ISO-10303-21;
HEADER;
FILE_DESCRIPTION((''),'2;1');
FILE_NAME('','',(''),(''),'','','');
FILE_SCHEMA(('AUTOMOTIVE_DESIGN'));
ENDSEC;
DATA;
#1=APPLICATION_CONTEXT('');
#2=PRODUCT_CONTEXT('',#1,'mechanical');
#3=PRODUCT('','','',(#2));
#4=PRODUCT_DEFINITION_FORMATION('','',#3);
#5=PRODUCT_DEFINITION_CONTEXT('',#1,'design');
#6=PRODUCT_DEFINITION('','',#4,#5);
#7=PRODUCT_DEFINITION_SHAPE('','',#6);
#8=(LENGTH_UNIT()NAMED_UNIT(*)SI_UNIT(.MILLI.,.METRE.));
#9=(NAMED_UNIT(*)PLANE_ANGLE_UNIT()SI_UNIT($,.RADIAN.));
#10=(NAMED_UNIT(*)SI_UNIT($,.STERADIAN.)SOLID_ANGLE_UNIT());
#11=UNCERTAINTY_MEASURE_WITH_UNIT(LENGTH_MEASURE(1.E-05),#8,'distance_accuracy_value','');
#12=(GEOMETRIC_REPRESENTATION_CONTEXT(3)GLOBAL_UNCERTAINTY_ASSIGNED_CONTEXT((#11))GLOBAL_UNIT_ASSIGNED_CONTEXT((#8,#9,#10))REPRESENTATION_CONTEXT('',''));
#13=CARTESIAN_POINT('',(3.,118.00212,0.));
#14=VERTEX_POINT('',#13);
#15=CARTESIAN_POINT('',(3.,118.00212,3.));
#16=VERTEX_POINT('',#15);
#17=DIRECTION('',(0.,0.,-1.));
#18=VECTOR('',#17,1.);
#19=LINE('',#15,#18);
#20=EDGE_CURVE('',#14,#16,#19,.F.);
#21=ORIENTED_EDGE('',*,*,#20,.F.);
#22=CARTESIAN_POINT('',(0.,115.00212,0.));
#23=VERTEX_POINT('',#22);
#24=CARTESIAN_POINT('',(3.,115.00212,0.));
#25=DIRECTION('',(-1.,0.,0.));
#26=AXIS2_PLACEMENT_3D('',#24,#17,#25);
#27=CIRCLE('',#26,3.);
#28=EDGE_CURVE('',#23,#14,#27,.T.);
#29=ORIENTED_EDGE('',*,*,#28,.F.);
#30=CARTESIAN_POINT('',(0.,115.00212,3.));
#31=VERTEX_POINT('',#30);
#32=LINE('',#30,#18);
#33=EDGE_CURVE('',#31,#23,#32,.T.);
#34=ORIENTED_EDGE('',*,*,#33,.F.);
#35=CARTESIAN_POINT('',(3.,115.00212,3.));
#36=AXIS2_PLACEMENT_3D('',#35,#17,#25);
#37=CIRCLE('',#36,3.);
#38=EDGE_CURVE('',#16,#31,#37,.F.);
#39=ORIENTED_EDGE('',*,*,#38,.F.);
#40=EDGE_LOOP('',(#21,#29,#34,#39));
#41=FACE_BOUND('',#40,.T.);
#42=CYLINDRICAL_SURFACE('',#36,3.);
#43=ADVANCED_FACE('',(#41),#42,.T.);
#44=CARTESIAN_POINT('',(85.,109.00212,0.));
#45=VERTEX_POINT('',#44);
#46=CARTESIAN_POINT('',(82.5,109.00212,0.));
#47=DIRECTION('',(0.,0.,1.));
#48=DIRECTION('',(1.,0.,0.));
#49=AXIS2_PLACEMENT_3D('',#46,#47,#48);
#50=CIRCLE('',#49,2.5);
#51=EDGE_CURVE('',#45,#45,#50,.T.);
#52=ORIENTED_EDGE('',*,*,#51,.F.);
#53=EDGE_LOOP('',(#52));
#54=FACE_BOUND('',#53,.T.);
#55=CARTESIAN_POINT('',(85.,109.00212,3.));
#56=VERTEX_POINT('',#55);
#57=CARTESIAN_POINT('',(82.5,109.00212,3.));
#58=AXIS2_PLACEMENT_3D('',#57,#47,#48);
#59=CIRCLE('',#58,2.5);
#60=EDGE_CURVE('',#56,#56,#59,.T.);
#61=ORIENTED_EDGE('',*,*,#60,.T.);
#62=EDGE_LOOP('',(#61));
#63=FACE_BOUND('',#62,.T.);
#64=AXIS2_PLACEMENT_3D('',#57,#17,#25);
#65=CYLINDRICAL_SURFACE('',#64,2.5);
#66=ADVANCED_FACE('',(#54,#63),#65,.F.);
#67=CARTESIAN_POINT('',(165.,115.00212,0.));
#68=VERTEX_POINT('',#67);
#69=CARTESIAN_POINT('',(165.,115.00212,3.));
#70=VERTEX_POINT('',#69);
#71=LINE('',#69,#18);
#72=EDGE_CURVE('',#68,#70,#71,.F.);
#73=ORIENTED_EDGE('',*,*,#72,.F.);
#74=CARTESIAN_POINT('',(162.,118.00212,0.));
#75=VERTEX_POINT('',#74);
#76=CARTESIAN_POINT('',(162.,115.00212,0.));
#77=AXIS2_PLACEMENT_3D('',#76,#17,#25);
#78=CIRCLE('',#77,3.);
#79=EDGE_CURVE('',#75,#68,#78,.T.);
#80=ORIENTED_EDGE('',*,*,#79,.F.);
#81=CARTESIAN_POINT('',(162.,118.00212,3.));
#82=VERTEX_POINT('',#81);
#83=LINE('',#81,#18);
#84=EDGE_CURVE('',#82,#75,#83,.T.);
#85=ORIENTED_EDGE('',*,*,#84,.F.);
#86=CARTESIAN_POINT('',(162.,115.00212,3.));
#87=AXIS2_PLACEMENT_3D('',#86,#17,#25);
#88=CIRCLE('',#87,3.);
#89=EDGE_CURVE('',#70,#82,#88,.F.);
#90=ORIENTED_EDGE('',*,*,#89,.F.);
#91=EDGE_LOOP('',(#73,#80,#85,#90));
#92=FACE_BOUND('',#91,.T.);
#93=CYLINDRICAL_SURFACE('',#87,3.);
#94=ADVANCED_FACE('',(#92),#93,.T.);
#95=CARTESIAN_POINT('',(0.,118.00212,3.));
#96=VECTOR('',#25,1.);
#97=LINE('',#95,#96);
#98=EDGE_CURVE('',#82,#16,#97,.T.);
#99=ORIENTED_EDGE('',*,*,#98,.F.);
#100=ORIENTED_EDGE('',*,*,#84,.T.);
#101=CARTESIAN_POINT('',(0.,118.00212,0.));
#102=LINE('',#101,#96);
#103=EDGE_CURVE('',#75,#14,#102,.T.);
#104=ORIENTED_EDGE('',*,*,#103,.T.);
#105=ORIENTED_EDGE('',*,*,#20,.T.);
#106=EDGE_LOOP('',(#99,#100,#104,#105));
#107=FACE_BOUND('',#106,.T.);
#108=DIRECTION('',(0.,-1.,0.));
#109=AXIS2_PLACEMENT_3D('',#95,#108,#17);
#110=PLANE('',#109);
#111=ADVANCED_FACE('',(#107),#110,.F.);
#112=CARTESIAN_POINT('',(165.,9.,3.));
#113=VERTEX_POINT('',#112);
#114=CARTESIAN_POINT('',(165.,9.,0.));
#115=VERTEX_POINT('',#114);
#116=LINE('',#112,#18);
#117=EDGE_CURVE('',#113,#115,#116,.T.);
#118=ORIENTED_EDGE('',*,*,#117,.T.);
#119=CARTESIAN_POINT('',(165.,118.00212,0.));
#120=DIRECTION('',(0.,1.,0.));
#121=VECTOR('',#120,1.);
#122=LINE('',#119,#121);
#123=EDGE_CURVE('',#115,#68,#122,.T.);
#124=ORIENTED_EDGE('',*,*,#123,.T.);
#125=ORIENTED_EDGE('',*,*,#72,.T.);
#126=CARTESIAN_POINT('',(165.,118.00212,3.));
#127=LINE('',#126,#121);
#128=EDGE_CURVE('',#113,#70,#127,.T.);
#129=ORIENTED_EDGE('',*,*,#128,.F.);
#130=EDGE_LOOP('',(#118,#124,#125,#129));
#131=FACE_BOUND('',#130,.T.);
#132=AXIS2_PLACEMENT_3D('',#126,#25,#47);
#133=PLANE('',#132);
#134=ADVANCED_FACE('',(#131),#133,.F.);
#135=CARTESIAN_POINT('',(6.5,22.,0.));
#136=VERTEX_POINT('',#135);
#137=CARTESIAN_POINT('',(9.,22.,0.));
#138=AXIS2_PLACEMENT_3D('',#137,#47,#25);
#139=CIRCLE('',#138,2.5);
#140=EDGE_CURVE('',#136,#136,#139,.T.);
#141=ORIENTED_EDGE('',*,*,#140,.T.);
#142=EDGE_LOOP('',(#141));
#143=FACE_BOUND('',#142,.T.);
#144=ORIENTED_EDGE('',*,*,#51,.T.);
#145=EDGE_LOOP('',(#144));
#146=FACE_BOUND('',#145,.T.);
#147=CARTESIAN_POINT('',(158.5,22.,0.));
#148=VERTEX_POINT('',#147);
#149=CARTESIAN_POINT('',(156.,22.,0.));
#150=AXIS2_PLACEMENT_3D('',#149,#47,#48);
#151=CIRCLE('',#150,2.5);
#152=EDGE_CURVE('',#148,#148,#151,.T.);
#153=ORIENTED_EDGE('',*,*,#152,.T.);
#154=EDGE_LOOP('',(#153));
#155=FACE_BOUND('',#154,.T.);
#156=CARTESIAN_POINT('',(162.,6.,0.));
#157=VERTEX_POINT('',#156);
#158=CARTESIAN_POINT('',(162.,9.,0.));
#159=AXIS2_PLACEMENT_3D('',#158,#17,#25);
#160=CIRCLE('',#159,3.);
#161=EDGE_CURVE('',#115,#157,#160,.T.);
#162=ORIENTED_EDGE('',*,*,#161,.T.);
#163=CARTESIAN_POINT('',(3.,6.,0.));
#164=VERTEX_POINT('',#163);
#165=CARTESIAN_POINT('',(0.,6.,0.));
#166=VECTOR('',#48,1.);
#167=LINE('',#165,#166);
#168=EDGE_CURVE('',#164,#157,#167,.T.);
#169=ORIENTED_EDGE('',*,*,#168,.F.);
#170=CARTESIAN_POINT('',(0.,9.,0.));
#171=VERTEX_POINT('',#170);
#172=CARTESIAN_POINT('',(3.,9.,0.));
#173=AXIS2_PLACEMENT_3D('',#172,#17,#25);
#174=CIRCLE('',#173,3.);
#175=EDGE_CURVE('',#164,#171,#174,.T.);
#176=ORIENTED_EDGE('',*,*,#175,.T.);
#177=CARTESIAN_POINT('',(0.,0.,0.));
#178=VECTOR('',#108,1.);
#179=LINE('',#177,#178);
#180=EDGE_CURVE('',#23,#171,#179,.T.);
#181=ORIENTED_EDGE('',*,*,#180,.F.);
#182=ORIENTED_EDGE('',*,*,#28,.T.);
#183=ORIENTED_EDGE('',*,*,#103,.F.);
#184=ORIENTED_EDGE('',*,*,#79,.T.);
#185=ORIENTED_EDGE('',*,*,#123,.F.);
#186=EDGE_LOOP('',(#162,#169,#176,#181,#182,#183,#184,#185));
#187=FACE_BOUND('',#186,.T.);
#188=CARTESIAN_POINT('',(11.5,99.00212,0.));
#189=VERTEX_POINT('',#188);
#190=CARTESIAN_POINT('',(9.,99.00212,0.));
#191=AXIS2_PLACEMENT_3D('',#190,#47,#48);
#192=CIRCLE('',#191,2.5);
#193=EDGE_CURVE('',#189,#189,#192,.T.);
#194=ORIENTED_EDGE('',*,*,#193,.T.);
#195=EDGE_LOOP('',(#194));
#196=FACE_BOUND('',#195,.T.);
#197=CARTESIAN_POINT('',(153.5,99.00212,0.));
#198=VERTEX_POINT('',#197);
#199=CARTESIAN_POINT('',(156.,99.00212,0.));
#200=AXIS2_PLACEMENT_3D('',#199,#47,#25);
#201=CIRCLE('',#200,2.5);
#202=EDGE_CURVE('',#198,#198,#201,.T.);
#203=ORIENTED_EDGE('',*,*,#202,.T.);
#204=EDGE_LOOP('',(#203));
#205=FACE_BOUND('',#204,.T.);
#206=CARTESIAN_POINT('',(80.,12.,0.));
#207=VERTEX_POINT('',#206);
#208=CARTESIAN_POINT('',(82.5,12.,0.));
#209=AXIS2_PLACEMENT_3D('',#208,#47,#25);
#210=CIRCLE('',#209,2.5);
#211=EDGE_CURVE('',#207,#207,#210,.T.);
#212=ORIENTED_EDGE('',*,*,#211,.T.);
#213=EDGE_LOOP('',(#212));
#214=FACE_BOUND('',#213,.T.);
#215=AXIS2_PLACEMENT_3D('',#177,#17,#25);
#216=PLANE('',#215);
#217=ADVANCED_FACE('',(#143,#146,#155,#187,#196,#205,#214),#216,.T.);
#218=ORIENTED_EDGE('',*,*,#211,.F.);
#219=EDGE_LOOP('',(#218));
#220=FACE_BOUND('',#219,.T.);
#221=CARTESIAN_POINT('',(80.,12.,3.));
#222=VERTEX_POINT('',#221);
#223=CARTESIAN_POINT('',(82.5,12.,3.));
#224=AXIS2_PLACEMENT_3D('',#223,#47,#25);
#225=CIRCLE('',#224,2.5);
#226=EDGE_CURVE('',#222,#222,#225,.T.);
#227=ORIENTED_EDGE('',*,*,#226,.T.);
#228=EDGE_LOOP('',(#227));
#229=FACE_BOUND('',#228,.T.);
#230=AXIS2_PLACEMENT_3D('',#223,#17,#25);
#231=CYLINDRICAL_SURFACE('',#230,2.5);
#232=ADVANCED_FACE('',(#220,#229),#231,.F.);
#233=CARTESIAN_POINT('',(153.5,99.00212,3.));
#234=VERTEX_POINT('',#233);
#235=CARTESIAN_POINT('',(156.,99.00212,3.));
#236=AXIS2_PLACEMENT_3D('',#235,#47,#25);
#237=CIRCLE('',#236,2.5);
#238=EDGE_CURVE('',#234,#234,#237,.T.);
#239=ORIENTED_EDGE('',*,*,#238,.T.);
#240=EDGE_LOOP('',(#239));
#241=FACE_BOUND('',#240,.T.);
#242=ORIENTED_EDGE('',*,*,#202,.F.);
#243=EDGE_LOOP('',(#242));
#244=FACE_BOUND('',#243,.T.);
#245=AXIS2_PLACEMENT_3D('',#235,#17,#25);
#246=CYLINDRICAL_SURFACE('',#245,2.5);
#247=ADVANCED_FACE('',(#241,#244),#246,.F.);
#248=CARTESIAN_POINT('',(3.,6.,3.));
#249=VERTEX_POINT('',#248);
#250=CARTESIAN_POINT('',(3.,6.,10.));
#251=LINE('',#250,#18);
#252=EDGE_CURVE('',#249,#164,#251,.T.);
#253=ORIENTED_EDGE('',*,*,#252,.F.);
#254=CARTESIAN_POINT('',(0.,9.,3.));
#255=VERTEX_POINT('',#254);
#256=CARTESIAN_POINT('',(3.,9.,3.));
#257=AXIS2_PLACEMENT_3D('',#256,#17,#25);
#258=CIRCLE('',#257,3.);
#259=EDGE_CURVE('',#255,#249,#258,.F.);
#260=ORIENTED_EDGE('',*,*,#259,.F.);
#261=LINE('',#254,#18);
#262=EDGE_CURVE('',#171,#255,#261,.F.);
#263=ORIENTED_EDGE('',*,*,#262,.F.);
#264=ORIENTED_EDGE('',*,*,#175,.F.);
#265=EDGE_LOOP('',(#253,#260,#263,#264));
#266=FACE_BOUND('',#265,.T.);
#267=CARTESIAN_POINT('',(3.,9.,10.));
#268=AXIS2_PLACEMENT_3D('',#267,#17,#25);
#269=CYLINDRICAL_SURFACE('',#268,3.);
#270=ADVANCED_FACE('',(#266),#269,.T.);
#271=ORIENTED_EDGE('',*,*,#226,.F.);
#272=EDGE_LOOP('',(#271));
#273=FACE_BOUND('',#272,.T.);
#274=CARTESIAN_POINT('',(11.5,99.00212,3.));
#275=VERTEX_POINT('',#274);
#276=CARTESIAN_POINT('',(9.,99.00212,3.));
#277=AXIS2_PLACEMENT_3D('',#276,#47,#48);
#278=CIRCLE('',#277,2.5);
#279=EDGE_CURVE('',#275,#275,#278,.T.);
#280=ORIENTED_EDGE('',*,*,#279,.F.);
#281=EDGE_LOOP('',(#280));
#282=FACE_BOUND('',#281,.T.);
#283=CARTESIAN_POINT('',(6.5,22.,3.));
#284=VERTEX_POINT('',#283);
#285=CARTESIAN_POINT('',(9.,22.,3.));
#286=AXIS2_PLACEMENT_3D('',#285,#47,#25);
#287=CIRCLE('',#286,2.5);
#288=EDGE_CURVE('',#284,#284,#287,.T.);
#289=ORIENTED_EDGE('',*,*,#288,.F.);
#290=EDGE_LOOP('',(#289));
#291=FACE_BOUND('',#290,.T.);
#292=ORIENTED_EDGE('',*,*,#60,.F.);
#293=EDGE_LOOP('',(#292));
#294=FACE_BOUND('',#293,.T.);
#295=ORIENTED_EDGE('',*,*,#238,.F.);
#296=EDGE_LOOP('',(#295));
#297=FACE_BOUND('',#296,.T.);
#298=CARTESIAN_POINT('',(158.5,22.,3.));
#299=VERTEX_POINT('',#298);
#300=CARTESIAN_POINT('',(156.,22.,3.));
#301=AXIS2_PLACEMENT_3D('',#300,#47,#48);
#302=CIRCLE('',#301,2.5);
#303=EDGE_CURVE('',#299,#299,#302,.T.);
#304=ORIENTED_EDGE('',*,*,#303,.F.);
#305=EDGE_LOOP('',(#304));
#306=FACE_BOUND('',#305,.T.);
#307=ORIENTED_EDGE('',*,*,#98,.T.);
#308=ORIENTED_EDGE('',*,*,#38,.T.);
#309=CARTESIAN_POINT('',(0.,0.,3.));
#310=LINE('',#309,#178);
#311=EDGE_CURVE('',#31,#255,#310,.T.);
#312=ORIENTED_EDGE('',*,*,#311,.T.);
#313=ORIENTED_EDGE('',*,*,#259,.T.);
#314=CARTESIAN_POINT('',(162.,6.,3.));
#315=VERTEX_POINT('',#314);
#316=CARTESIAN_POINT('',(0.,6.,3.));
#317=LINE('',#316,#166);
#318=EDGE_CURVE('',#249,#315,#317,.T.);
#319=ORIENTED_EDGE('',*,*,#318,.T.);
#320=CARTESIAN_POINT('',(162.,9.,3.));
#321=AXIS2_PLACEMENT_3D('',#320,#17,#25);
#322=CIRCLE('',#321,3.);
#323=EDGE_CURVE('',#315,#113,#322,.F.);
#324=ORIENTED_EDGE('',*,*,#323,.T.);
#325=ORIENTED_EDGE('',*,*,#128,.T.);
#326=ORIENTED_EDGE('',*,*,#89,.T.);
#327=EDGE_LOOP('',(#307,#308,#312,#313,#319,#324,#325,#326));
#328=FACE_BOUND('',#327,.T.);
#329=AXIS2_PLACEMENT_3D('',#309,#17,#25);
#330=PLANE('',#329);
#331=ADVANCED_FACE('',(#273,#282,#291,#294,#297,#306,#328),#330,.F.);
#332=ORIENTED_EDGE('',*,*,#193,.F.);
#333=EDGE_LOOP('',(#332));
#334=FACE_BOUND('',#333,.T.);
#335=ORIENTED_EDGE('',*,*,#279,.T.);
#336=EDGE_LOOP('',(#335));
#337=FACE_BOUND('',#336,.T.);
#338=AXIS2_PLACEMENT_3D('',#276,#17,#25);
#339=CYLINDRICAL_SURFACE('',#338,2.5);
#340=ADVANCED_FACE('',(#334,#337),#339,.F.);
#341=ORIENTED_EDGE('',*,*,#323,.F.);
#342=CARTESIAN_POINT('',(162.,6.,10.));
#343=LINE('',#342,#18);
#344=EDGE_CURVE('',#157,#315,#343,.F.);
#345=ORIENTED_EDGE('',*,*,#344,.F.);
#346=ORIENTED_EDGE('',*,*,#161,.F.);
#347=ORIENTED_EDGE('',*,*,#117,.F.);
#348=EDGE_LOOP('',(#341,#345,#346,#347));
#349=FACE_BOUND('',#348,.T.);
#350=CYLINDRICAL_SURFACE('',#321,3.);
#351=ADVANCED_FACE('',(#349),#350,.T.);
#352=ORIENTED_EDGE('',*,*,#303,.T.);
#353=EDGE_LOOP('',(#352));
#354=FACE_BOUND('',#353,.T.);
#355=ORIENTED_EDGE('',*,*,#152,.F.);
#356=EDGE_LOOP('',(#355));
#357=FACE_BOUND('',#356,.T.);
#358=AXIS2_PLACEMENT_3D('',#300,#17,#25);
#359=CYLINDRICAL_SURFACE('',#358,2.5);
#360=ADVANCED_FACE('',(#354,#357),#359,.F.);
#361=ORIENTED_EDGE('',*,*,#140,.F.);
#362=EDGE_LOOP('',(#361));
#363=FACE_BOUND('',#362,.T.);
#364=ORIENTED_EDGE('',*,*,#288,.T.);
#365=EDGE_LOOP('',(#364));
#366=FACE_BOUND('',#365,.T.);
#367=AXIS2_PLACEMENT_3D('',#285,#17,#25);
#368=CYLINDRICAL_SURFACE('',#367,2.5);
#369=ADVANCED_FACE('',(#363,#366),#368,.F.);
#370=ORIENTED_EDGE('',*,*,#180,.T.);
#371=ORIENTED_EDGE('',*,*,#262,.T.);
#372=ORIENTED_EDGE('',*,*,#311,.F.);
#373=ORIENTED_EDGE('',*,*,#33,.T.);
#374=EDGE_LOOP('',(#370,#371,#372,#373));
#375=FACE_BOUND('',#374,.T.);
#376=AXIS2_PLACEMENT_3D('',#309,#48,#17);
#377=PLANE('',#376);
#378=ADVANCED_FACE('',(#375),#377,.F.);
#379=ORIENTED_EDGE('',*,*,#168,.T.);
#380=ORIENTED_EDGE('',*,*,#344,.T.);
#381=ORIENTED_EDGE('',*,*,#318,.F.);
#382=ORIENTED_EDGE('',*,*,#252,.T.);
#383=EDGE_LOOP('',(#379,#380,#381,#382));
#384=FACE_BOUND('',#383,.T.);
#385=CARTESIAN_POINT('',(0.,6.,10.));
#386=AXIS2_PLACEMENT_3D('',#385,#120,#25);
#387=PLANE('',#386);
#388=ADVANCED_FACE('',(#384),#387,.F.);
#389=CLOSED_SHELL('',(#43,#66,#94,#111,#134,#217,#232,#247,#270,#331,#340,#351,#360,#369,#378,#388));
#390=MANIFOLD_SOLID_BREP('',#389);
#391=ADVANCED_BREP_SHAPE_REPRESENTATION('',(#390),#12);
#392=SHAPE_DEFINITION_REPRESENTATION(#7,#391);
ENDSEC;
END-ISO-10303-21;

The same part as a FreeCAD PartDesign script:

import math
import FreeCAD as App
import Part
import Sketcher

V = App.Vector
Q = App.Units.Quantity


def edges_at(feature, points):
    """Names of the edges that pass closest to the given points."""
    edges = feature.Shape.Edges
    near = lambda p: min(range(len(edges)), key=lambda i: edges[i].distToShape(Part.Vertex(*p))[0])
    return sorted({f"Edge{near(p) + 1}" for p in points})

doc = App.newDocument("Part")
params = doc.addObject("Spreadsheet::Sheet", "Params")
for row, (alias, value) in enumerate([
    ("sketch1_diameter", "5 mm"),
    ("sketch1_width", "165 mm"),
    ("pad1_length", "3 mm"),
    ("fillet_radius", "3 mm"),
    ("sketch2_radius", "3 mm"),
    ("sketch2_width", "159 mm"),
    ("sketch2_height", "3 mm"),
    ("pocket1_length", "10 mm"),
    ("fillet2_radius", "3 mm"),
], start=1):
    params.set(f"A{row}", alias)
    params.set(f"B{row}", "=" + value)
    params.setAlias(f"B{row}", alias)

body = doc.addObject("PartDesign::Body", "Body")

# Sketch on XY plane
sketch1 = body.newObject("Sketcher::SketchObject", "Sketch")
sketch1.AttachmentSupport = (doc.getObject("XY_Plane"), [""])
sketch1.MapMode = "FlatFace"
sketch1.addGeometry(Part.LineSegment(V(0, 118, 0), V(0, 0, 0)), False)
sketch1.addGeometry(Part.LineSegment(V(0, 0, 0), V(165, 0, 0)), False)
sketch1.addGeometry(Part.LineSegment(V(165, 0, 0), V(165, 118, 0)), False)
sketch1.addGeometry(Part.LineSegment(V(165, 118, 0), V(0, 118, 0)), False)
sketch1.addGeometry(Part.Circle(V(9, 22, 0), V(0, 0, 1), 2.5), False)
sketch1.addGeometry(Part.Circle(V(82.5, 12, 0), V(0, 0, 1), 2.5), False)
sketch1.addGeometry(Part.Circle(V(156, 22, 0), V(0, 0, 1), 2.5), False)
sketch1.addGeometry(Part.Circle(V(9, 99, 0), V(0, 0, 1), 2.5), False)
sketch1.addGeometry(Part.Circle(V(82.5, 109, 0), V(0, 0, 1), 2.5), False)
sketch1.addGeometry(Part.Circle(V(156, 99, 0), V(0, 0, 1), 2.5), False)
sketch1.addConstraint(Sketcher.Constraint("Coincident", 0, 2, 1, 1))
sketch1.addConstraint(Sketcher.Constraint("Coincident", 1, 2, 2, 1))
sketch1.addConstraint(Sketcher.Constraint("Coincident", 2, 2, 3, 1))
sketch1.addConstraint(Sketcher.Constraint("Coincident", 3, 2, 0, 1))
sketch1.addConstraint(Sketcher.Constraint("Vertical", 0))
sketch1.addConstraint(Sketcher.Constraint("Horizontal", 1))
sketch1.addConstraint(Sketcher.Constraint("Vertical", 2))
sketch1.addConstraint(Sketcher.Constraint("Horizontal", 3))
sketch1.addConstraint(Sketcher.Constraint("Coincident", 0, 2, -1, 1))
sketch1.addConstraint(Sketcher.Constraint("Equal", 4, 5))
sketch1.addConstraint(Sketcher.Constraint("Equal", 5, 6))
sketch1.addConstraint(Sketcher.Constraint("Equal", 6, 7))
sketch1.addConstraint(Sketcher.Constraint("Equal", 7, 8))
sketch1.addConstraint(Sketcher.Constraint("Equal", 8, 9))
sketch1.addConstraint(Sketcher.Constraint("Horizontal", 4, 3, 6, 3))
sketch1.addConstraint(Sketcher.Constraint("Horizontal", 7, 3, 9, 3))
sketch1.addConstraint(Sketcher.Constraint("Vertical", 4, 3, 7, 3))
sketch1.addConstraint(Sketcher.Constraint("Vertical", 5, 3, 8, 3))
sketch1.addConstraint(Sketcher.Constraint("Vertical", 6, 3, 9, 3))
sketch1.addConstraint(Sketcher.Constraint("Diameter", 4, Q("5 mm")))
sketch1.addConstraint(Sketcher.Constraint("DistanceX", 1, 1, 1, 2, Q("165 mm")))
sketch1.addConstraint(Sketcher.Constraint("DistanceX", -1, 1, 4, 3, Q("9 mm")))
sketch1.addConstraint(Sketcher.Constraint("DistanceY", -1, 1, 4, 3, Q("22 mm")))
sketch1.addConstraint(Sketcher.Constraint("DistanceY", -1, 1, 5, 3, Q("12 mm")))
sketch1.addConstraint(Sketcher.Constraint("DistanceX", -1, 1, 6, 3, Q("156 mm")))
sketch1.addConstraint(Sketcher.Constraint("DistanceY", 7, 3, 8, 3, Q("10 mm")))
sketch1.addConstraint(Sketcher.Constraint("DistanceY", 9, 3, 2, 2, Q("19 mm")))
sketch1.addConstraint(Sketcher.Constraint("DistanceX", -1, 1, 5, 3, Q("82.5 mm")))
sketch1.addConstraint(Sketcher.Constraint("DistanceY", 0, 2, 0, 1, Q("118.00212 mm")))
sketch1.setExpression("Constraints[19]", "Params.sketch1_diameter")
sketch1.setExpression("Constraints[20]", "Params.sketch1_width")
pad1 = body.newObject("PartDesign::Pad", "Pad")
pad1.Profile = sketch1
pad1.setExpression("Length", "Params.pad1_length")
doc.recompute()

fillet = body.newObject("PartDesign::Fillet", "Fillet")
fillet.Base = (pad1, edges_at(pad1, [
    (0, 0, 1.5),
    (0, 118.002, 1.5),
    (165, 118.002, 1.5),
    (165, 0, 1.5),
]))
fillet.setExpression("Radius", "Params.fillet_radius")

# Sketch on XY plane
sketch2 = body.newObject("Sketcher::SketchObject", "Sketch001")
sketch2.AttachmentSupport = (doc.getObject("XY_Plane"), [""])
sketch2.MapMode = "FlatFace"
sketch2.AttachmentOffset = App.Placement(V(0, 0, 10), App.Rotation())
sketch2.addGeometry(Part.LineSegment(V(162, 0, 0), V(3, 0, 0)), False)
sketch2.addGeometry(Part.ArcOfCircle(Part.Circle(V(3, 3, 0), V(0, 0, 1), 3), math.radians(180), math.radians(270)), False)
sketch2.addGeometry(Part.LineSegment(V(0, 3, 0), V(0, 6, 0)), False)
sketch2.addGeometry(Part.LineSegment(V(0, 6, 0), V(165, 6, 0)), False)
sketch2.addGeometry(Part.LineSegment(V(165, 6, 0), V(165, 3, 0)), False)
sketch2.addGeometry(Part.ArcOfCircle(Part.Circle(V(162, 3, 0), V(0, 0, 1), 3), math.radians(-90), math.radians(0)), False)
sketch2.addConstraint(Sketcher.Constraint("Tangent", 0, 2, 1, 2))
sketch2.addConstraint(Sketcher.Constraint("Tangent", 1, 1, 2, 1))
sketch2.addConstraint(Sketcher.Constraint("Coincident", 2, 2, 3, 1))
sketch2.addConstraint(Sketcher.Constraint("Coincident", 3, 2, 4, 1))
sketch2.addConstraint(Sketcher.Constraint("Tangent", 4, 2, 5, 2))
sketch2.addConstraint(Sketcher.Constraint("Tangent", 5, 1, 0, 1))
sketch2.addConstraint(Sketcher.Constraint("Horizontal", 0))
sketch2.addConstraint(Sketcher.Constraint("Vertical", 2))
sketch2.addConstraint(Sketcher.Constraint("Horizontal", 3))
sketch2.addConstraint(Sketcher.Constraint("Vertical", 4))
sketch2.addConstraint(Sketcher.Constraint("Equal", 1, 5))
sketch2.addConstraint(Sketcher.Constraint("PointOnObject", 0, 2, -1))
sketch2.addConstraint(Sketcher.Constraint("PointOnObject", 1, 1, -2))
sketch2.addConstraint(Sketcher.Constraint("Radius", 1, Q("3 mm")))
sketch2.addConstraint(Sketcher.Constraint("DistanceX", 0, 2, 0, 1, Q("159 mm")))
sketch2.addConstraint(Sketcher.Constraint("DistanceY", 2, 1, 2, 2, Q("3 mm")))
sketch2.setExpression("Constraints[13]", "Params.sketch2_radius")
sketch2.setExpression("Constraints[14]", "Params.sketch2_width")
sketch2.setExpression("Constraints[15]", "Params.sketch2_height")
pocket1 = body.newObject("PartDesign::Pocket", "Pocket")
pocket1.Profile = sketch2
pocket1.setExpression("Length", "Params.pocket1_length")
doc.recompute()

fillet2 = body.newObject("PartDesign::Fillet", "Fillet001")
fillet2.Base = (pocket1, edges_at(pocket1, [(165, 6, 1.5), (0, 6, 1.5)]))
fillet2.setExpression("Radius", "Params.fillet2_radius")

doc.recompute()
